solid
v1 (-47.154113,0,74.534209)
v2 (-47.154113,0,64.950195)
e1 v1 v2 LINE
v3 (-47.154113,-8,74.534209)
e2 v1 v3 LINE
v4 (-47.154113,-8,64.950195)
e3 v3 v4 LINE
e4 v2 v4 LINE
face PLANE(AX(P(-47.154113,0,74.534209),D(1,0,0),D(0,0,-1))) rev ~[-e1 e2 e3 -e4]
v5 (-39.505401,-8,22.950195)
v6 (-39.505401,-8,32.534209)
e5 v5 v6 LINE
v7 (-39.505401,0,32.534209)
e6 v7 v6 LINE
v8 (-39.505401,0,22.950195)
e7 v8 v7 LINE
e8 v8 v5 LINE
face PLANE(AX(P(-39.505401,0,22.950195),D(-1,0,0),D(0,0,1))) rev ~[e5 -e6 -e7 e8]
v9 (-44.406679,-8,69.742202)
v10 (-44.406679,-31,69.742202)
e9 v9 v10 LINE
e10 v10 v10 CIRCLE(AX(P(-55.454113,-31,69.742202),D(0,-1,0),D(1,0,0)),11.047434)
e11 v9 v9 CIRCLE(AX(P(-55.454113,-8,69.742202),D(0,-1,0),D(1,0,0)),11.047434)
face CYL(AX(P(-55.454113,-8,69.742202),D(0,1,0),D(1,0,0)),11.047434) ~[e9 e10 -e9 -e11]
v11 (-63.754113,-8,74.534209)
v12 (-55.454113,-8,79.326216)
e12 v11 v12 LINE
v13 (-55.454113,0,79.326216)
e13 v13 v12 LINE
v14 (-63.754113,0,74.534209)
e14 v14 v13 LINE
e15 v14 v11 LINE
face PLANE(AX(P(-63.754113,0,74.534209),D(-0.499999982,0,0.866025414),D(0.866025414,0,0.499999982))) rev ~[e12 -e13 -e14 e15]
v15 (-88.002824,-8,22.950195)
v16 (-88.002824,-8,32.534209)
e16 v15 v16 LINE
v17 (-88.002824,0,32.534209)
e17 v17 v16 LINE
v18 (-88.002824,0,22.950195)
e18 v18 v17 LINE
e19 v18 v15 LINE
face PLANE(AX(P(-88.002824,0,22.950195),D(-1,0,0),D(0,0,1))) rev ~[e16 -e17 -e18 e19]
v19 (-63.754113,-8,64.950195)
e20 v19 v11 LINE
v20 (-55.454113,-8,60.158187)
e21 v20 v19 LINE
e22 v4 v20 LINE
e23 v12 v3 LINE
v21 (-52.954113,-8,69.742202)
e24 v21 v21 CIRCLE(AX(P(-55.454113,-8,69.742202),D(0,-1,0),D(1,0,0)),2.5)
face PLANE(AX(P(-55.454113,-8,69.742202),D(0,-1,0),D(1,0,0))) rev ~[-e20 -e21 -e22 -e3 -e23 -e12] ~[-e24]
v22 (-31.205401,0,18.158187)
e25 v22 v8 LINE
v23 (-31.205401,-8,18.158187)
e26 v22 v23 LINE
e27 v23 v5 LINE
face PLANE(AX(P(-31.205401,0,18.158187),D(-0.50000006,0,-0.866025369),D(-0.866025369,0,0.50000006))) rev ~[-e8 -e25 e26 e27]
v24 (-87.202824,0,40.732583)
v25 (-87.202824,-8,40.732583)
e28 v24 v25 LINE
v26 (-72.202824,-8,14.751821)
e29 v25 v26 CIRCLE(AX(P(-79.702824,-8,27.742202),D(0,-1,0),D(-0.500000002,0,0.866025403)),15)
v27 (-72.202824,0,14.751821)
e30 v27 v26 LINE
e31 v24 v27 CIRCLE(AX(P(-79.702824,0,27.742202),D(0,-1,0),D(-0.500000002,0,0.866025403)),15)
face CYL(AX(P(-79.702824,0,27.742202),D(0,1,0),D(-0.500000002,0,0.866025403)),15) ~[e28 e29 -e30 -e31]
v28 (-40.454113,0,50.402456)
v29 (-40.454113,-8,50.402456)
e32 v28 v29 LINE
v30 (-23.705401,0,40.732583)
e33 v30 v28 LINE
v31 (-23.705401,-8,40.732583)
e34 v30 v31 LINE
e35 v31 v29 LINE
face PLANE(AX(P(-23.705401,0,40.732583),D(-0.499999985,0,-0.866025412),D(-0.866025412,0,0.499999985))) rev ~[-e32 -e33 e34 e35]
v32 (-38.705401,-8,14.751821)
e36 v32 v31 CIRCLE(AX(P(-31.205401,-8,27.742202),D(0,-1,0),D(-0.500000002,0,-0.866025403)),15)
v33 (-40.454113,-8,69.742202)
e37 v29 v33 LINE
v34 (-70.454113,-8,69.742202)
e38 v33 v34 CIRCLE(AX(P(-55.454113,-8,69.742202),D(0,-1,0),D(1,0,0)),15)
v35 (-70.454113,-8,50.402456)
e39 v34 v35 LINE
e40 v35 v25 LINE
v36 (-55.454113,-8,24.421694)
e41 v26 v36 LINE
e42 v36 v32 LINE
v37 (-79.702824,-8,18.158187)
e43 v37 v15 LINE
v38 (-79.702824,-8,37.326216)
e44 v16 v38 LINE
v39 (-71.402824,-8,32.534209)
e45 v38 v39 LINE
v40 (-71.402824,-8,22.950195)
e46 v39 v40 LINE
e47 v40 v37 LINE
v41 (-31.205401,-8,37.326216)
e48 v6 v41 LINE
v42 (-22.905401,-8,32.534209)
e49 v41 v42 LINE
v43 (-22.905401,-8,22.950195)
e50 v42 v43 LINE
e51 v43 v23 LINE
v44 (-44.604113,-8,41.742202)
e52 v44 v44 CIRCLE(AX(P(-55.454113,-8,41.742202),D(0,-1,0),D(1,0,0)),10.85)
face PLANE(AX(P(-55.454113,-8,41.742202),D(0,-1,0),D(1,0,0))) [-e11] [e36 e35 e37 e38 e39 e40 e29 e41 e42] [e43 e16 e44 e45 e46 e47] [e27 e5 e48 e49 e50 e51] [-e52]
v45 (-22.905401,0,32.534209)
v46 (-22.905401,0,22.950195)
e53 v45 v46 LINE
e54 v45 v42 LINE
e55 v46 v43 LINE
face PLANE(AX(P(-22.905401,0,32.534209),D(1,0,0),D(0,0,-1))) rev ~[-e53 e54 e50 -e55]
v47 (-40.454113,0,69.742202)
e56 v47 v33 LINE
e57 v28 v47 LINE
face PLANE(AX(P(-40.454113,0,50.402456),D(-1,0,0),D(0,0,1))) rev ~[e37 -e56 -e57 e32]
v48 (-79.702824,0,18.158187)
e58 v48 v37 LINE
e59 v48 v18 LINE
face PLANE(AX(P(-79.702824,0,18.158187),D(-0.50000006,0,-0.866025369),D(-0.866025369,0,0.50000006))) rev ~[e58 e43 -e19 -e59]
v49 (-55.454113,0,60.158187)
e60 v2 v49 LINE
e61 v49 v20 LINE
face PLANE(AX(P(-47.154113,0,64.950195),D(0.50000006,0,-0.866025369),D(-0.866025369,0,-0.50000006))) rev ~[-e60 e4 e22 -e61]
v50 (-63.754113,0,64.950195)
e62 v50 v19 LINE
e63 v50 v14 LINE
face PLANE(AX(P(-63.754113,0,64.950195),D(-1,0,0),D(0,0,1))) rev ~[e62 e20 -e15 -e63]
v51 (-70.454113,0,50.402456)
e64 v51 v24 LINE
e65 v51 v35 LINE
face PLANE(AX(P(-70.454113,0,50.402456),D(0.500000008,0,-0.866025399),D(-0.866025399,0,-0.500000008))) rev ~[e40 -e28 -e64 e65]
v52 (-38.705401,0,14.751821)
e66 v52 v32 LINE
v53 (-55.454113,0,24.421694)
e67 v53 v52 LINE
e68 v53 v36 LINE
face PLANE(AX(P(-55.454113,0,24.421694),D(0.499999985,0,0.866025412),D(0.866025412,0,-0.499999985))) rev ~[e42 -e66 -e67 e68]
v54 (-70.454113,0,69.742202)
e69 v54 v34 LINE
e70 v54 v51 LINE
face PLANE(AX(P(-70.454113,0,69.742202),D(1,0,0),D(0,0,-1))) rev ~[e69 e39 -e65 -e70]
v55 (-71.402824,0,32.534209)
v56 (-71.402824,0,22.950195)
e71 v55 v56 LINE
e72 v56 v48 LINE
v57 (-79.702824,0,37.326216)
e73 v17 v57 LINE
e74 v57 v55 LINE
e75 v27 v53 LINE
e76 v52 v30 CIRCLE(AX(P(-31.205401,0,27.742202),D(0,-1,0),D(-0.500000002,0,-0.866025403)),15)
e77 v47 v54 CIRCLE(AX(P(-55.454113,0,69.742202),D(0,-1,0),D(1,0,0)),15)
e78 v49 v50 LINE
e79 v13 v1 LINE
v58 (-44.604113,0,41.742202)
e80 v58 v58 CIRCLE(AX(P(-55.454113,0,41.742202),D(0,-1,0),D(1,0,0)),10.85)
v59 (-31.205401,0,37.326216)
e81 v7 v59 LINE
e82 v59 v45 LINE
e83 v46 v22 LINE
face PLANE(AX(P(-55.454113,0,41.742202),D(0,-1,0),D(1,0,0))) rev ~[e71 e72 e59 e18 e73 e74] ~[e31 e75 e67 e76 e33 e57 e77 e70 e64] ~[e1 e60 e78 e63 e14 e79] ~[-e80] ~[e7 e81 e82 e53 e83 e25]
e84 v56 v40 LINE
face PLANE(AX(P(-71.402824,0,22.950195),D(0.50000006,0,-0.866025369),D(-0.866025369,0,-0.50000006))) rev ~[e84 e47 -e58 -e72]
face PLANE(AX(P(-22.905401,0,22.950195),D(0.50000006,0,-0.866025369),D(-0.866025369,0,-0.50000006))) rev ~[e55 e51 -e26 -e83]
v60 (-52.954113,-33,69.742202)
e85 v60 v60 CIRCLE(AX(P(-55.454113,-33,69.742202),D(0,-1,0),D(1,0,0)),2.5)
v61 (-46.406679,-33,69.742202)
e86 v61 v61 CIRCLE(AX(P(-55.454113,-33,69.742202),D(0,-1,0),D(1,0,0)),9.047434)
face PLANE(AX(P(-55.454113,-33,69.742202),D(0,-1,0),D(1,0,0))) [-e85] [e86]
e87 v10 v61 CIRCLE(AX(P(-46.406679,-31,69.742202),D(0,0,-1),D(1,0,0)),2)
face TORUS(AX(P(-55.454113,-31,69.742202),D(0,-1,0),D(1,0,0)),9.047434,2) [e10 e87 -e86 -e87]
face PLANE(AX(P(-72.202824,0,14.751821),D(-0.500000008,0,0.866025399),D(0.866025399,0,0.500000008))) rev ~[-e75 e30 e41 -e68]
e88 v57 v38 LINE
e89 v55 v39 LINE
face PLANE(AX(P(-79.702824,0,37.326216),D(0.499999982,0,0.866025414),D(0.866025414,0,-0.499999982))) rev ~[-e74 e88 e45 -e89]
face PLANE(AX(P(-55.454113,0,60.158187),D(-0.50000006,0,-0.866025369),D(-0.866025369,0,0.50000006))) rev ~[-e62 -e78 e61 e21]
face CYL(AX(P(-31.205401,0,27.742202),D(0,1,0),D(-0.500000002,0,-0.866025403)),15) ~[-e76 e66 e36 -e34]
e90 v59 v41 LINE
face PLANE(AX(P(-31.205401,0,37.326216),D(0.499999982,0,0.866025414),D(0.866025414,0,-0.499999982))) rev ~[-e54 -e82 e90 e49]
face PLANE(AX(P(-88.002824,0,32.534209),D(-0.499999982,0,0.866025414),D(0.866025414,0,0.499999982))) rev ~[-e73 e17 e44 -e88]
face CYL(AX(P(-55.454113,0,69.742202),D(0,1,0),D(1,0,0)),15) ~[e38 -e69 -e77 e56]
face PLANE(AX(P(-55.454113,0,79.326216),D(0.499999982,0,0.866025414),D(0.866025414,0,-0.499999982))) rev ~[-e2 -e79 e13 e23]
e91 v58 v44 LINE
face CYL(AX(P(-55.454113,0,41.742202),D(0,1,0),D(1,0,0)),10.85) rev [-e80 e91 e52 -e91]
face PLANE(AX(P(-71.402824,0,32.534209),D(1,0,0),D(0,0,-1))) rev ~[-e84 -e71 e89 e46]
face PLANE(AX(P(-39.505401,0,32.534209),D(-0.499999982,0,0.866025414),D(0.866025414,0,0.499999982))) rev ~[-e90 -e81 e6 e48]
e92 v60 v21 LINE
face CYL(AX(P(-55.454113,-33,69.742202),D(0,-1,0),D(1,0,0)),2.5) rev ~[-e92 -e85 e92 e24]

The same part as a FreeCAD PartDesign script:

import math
import FreeCAD as App
import Part
import Sketcher

V = App.Vector
Q = App.Units.Quantity


def edges_at(feature, points):
    """Names of the edges that pass closest to the given points."""
    edges = feature.Shape.Edges
    near = lambda p: min(range(len(edges)), key=lambda i: edges[i].distToShape(Part.Vertex(*p))[0])
    return sorted({f"Edge{near(p) + 1}" for p in points})


def add_polygon(sketch, points):
    """Adds a closed chain of lines whose ends are joined by coincident constraints."""
    first, n = sketch.GeometryCount, len(points)
    for a, b in zip(points, points[1:] + points[:1]):
        sketch.addGeometry(Part.LineSegment(App.Vector(*a, 0), App.Vector(*b, 0)), False)
    for i in range(n):
        sketch.addConstraint(Sketcher.Constraint("Coincident", first + i, 2, first + (i + 1) % n, 1))

doc = App.newDocument("Part")
body = doc.addObject("PartDesign::Body", "Body")

# Sketch on XZ plane
sketch1 = doc.addObject("Sketcher::SketchObject", "Sketch")
body.addObject(sketch1)
sketch1.AttachmentSupport = (doc.XZ_Plane, [""])
sketch1.MapMode = "FlatFace"
sketch1.addGeometry(Part.LineSegment(V(-40, 50, 0), V(-40, 70, 0)), False)  # 0
sketch1.addGeometry(Part.ArcOfCircle(Part.Circle(V(-55, 70, 0), V(0, 0, 1), 15), math.radians(0), math.radians(180)), False)  # 1
sketch1.addGeometry(Part.LineSegment(V(-70, 70, 0), V(-70, 50, 0)), False)  # 2
sketch1.addGeometry(Part.LineSegment(V(-70, 50, 0), V(-87, 41, 0)), False)  # 3
sketch1.addGeometry(Part.ArcOfCircle(Part.Circle(V(-80, 28, 0), V(0, 0, 1), 15), math.radians(120), math.radians(300)), False)  # 4
sketch1.addGeometry(Part.LineSegment(V(-72, 15, 0), V(-55, 24, 0)), False)  # 5
sketch1.addGeometry(Part.LineSegment(V(-55, 24, 0), V(-39, 15, 0)), False)  # 6
sketch1.addGeometry(Part.ArcOfCircle(Part.Circle(V(-31, 28, 0), V(0, 0, 1), 15), math.radians(-120), math.radians(60)), False)  # 7
sketch1.addGeometry(Part.LineSegment(V(-24, 41, 0), V(-40, 50, 0)), False)  # 8
add_polygon(sketch1, [(-80, 37), (-71, 33), (-71, 23), (-80, 18), (-88, 23), (-88, 33)])  # lines 9-14
sketch1.addGeometry(Part.Circle(V(-55, 42, 0), V(0, 0, 1), 11), False)  # 15
add_polygon(sketch1, [(-40, 23), (-40, 33), (-31, 37), (-23, 33), (-23, 23), (-31, 18)])  # lines 16-21
add_polygon(sketch1, [(-64, 75), (-55, 79), (-47, 75), (-47, 65), (-55, 60), (-64, 65)])  # lines 22-27
sketch1.addConstraint([
    Sketcher.Constraint("Tangent", 0, 2, 1, 1),
    Sketcher.Constraint("Tangent", 1, 2, 2, 1),
    Sketcher.Constraint("Coincident", 2, 2, 3, 1),
    Sketcher.Constraint("Tangent", 3, 2, 4, 1),
    Sketcher.Constraint("Tangent", 4, 2, 5, 1),
    Sketcher.Constraint("Coincident", 5, 2, 6, 1),
    Sketcher.Constraint("Tangent", 6, 2, 7, 1),
    Sketcher.Constraint("Tangent", 7, 2, 8, 1),
    Sketcher.Constraint("Coincident", 8, 2, 0, 1),
    Sketcher.Constraint("Vertical", 0),
    Sketcher.Constraint("Vertical", 2),
    Sketcher.Constraint("Vertical", 10),
    Sketcher.Constraint("Vertical", 13),
    Sketcher.Constraint("Vertical", 16),
    Sketcher.Constraint("Vertical", 19),
    Sketcher.Constraint("Vertical", 24),
    Sketcher.Constraint("Vertical", 27),
    Sketcher.Constraint("Equal", 1, 4),
    Sketcher.Constraint("Equal", 4, 7),
    Sketcher.Constraint("Parallel", 3, 5),
    Sketcher.Constraint("Parallel", 6, 8),
    Sketcher.Constraint("Parallel", 8, 9),
    Sketcher.Constraint("Parallel", 5, 11),
    Sketcher.Constraint("Parallel", 9, 12),
    Sketcher.Constraint("Parallel", 11, 14),
    Sketcher.Constraint("Parallel", 14, 17),
    Sketcher.Constraint("Parallel", 12, 18),
    Sketcher.Constraint("Parallel", 17, 20),
    Sketcher.Constraint("Parallel", 18, 21),
    Sketcher.Constraint("Parallel", 20, 22),
    Sketcher.Constraint("Parallel", 21, 23),
    Sketcher.Constraint("Parallel", 22, 25),
    Sketcher.Constraint("Parallel", 23, 26),
    Sketcher.Constraint("Horizontal", 4, 3, 7, 3),
    Sketcher.Constraint("Horizontal", 4, 2, 6, 2),
    Sketcher.Constraint("Horizontal", 2, 2, 8, 2),
    Sketcher.Constraint("Horizontal", 10, 2, 12, 2),
    Sketcher.Constraint("Horizontal", 9, 2, 13, 2),
    Sketcher.Constraint("Horizontal", 13, 2, 16, 2),
    Sketcher.Constraint("Horizontal", 14, 2, 17, 2),
    Sketcher.Constraint("Horizontal", 16, 2, 18, 2),
    Sketcher.Constraint("Horizontal", 12, 2, 19, 2),
    Sketcher.Constraint("Horizontal", 11, 2, 20, 2),
    Sketcher.Constraint("Horizontal", 24, 2, 26, 2),
    Sketcher.Constraint("Horizontal", 23, 2, 27, 2),
    Sketcher.Constraint("Vertical", 1, 3, 15, 3),
    Sketcher.Constraint("Vertical", 4, 3, 11, 2),
    Sketcher.Constraint("Vertical", 7, 3, 17, 2),
    Sketcher.Constraint("Vertical", 5, 2, 22, 2),
    Sketcher.Constraint("Equal", 19, 24),
    Sketcher.Constraint("Equal", 3, 5),
    Sketcher.Constraint("Equal", 21, 22),
    Sketcher.Constraint("Radius", 1, Q("15 mm")),
    Sketcher.Constraint("Diameter", 15, Q("21.7 mm")),
    Sketcher.Constraint("DistanceY", 4, 3, 1, 3, Q("42 mm")),
    Sketcher.Constraint("DistanceY", 4, 3, 15, 3, Q("14 mm")),
    Sketcher.Constraint("DistanceX", 4, 3, 9, 2, Q("8.3 mm")),
    Sketcher.Constraint("DistanceY", -1, 1, 4, 3, Q("27.742202 mm")),
    Sketcher.Constraint("DistanceX", 7, 3, -1, 1, Q("31.205401 mm")),
    Sketcher.Constraint("DistanceY", 10, 2, 5, 2, Q("1.471499 mm")),
    Sketcher.Constraint("DistanceY", 0, 1, 0, 2, Q("19.339746 mm")),
    Sketcher.Constraint("DistanceY", 10, 2, 10, 1, Q("9.584014 mm")),
    Sketcher.Constraint("DistanceY", -1, 1, 23, 2, Q("74.534209 mm")),
])
pad1 = doc.addObject("PartDesign::Pad", "Pad")
body.addObject(pad1)
pad1.Profile = sketch1
pad1.Length = 8

# Sketch on XZ plane
sketch2 = doc.addObject("Sketcher::SketchObject", "Sketch001")
body.addObject(sketch2)
sketch2.AttachmentSupport = (doc.XZ_Plane, [""])
sketch2.MapMode = "FlatFace"
sketch2.AttachmentOffset = App.Placement(V(0, 0, 8), App.Rotation())
sketch2.addGeometry(Part.Circle(V(-55, 70, 0), V(0, 0, 1), 11), False)
sketch2.addConstraint([
    Sketcher.Constraint("Diameter", 0, Q("22.094868 mm")),
    Sketcher.Constraint("DistanceX", 0, 3, -1, 1, Q("55.454113 mm")),
    Sketcher.Constraint("DistanceY", -1, 1, 0, 3, Q("69.742202 mm")),
])
pad2 = doc.addObject("PartDesign::Pad", "Pad001")
body.addObject(pad2)
pad2.Profile = sketch2
pad2.Length = 25
doc.recompute()

fillet = doc.addObject("PartDesign::Fillet", "Fillet")
body.addObject(fillet)
fillet.Base = (pad2, edges_at(pad2, [(-66.502, -33, 69.742)]))
fillet.Radius = 2

# Sketch on XZ plane
sketch3 = doc.addObject("Sketcher::SketchObject", "Sketch002")
body.addObject(sketch3)
sketch3.AttachmentSupport = (doc.XZ_Plane, [""])
sketch3.MapMode = "FlatFace"
sketch3.AttachmentOffset = App.Placement(V(0, 0, 33), App.Rotation())
sketch3.addGeometry(Part.Circle(V(-55.5, 69.7, 0), V(0, 0, 1), 2.5), False)
sketch3.addConstraint([
    Sketcher.Constraint("Diameter", 0, Q("5 mm")),
    Sketcher.Constraint("DistanceX", 0, 3, -1, 1, Q("55.454113 mm")),
    Sketcher.Constraint("DistanceY", -1, 1, 0, 3, Q("69.742202 mm")),
])
pocket1 = doc.addObject("PartDesign::Pocket", "Pocket")
body.addObject(pocket1)
pocket1.Profile = sketch3
pocket1.Length = 25

doc.recompute()
